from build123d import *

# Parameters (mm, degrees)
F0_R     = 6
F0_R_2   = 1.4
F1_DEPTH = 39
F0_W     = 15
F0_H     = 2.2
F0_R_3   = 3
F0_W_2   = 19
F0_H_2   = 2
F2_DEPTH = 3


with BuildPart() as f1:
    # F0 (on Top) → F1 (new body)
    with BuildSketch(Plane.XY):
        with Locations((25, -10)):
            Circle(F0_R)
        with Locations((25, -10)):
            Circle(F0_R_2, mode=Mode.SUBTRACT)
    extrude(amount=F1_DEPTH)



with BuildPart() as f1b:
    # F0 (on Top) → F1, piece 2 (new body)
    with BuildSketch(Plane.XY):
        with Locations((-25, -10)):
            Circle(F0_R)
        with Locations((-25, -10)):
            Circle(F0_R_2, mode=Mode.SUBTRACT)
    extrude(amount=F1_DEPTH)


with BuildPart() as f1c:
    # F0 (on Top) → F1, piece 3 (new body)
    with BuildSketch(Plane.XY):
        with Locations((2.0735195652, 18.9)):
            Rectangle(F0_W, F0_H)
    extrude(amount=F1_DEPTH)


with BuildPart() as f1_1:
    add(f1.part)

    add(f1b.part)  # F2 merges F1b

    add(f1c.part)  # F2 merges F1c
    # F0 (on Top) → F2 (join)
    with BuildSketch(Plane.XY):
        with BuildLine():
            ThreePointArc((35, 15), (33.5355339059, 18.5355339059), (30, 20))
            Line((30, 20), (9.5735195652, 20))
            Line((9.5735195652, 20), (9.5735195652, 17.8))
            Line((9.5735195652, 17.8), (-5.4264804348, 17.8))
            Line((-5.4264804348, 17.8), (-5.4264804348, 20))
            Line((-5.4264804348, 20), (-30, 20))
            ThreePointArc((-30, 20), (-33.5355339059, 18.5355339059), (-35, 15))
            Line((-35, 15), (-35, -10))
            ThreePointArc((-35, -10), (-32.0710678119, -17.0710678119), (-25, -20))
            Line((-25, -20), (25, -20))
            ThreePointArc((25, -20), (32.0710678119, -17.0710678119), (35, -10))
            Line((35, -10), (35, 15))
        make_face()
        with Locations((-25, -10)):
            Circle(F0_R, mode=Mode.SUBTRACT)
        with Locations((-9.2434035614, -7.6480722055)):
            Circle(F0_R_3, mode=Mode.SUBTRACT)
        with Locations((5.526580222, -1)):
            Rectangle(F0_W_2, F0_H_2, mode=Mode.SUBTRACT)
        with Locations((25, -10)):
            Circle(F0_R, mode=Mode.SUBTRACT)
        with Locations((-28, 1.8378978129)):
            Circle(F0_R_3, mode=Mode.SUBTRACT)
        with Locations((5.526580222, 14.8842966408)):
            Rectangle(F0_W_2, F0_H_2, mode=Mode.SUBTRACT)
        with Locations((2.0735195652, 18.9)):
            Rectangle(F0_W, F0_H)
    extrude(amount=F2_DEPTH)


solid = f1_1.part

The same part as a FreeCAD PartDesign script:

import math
import FreeCAD as App
import Part
import Sketcher

V = App.Vector


def add_polygon(sketch, points):
    """Adds a closed chain of lines whose ends are joined by coincident constraints."""
    first, n = sketch.GeometryCount, len(points)
    for a, b in zip(points, points[1:] + points[:1]):
        sketch.addGeometry(Part.LineSegment(App.Vector(*a, 0), App.Vector(*b, 0)), False)
    for i in range(n):
        sketch.addConstraint(Sketcher.Constraint("Coincident", first + i, 2, first + (i + 1) % n, 1))

doc = App.newDocument("Part")
body = doc.addObject("PartDesign::Body", "Body")

sketch1 = doc.addObject("Sketcher::SketchObject", "Sketch")
body.addObject(sketch1)
sketch1.AttachmentSupport = (doc.XY_Plane, [""])
sketch1.MapMode = "FlatFace"
sketch1.addGeometry(Part.Circle(V(25, -10, 0), V(0, 0, 1), 6), False)
sketch1.addGeometry(Part.Circle(V(25, -10, 0), V(0, 0, 1), 1.4), False)
sketch1.addConstraint(Sketcher.Constraint("Coincident", 1, 3, 0, 3))
sketch1.addConstraint(Sketcher.Constraint("Diameter", 0, 12.0))
sketch1.addConstraint(Sketcher.Constraint("Diameter", 1, 2.8))
sketch1.addConstraint(Sketcher.Constraint("DistanceX", -1, 1, 0, 3, 25.0))
sketch1.addConstraint(Sketcher.Constraint("DistanceY", 0, 3, -1, 1, 10.0))
pad1 = doc.addObject("PartDesign::Pad", "Pad")
body.addObject(pad1)
pad1.Profile = sketch1
pad1.Length = 39
body2 = doc.addObject("PartDesign::Body", "Body001")

sketch2 = doc.addObject("Sketcher::SketchObject", "Sketch001")
body2.addObject(sketch2)
sketch2.AttachmentSupport = (doc.getObject("XY_Plane001"), [""])
sketch2.MapMode = "FlatFace"
sketch2.addGeometry(Part.Circle(V(-25, -10, 0), V(0, 0, 1), 6), False)
sketch2.addGeometry(Part.Circle(V(-25, -10, 0), V(0, 0, 1), 1.4), False)
sketch2.addConstraint(Sketcher.Constraint("Coincident", 1, 3, 0, 3))
sketch2.addConstraint(Sketcher.Constraint("Diameter", 0, 12.0))
sketch2.addConstraint(Sketcher.Constraint("Diameter", 1, 2.8))
sketch2.addConstraint(Sketcher.Constraint("DistanceX", 0, 3, -1, 1, 25.0))
sketch2.addConstraint(Sketcher.Constraint("DistanceY", 0, 3, -1, 1, 10.0))
pad2 = doc.addObject("PartDesign::Pad", "Pad001")
body2.addObject(pad2)
pad2.Profile = sketch2
pad2.Length = 39
body3 = doc.addObject("PartDesign::Body", "Body002")

sketch3 = doc.addObject("Sketcher::SketchObject", "Sketch002")
body3.addObject(sketch3)
sketch3.AttachmentSupport = (doc.getObject("XY_Plane002"), [""])
sketch3.MapMode = "FlatFace"
add_polygon(sketch3, [(-5.42648, 20), (-5.42648, 17.8), (9.57352, 17.8), (9.57352, 20)])
sketch3.addConstraint(Sketcher.Constraint("Vertical", 0))
sketch3.addConstraint(Sketcher.Constraint("Horizontal", 1))
sketch3.addConstraint(Sketcher.Constraint("Vertical", 2))
sketch3.addConstraint(Sketcher.Constraint("Horizontal", 3))
sketch3.addConstraint(Sketcher.Constraint("DistanceX", 1, 1, 1, 2, 15.0))
sketch3.addConstraint(Sketcher.Constraint("DistanceY", 0, 2, 0, 1, 2.2))
sketch3.addConstraint(Sketcher.Constraint("DistanceY", -1, 1, 2, 2, 20.0))
sketch3.addConstraint(Sketcher.Constraint("DistanceX", 0, 2, -1, 1, 5.42648))
pad3 = doc.addObject("PartDesign::Pad", "Pad002")
body3.addObject(pad3)
pad3.Profile = sketch3
pad3.Length = 39
body.AllowCompound = True
doc.recompute()

boolean = doc.addObject("PartDesign::Boolean", "Boolean")
body.addObject(boolean)
boolean.Type = "Fuse"
boolean.addObjects([body2])
doc.recompute()

boolean2 = doc.addObject("PartDesign::Boolean", "Boolean001")
body.addObject(boolean2)
boolean2.Type = "Fuse"
boolean2.addObjects([body3])

sketch4 = doc.addObject("Sketcher::SketchObject", "Sketch003")
body.addObject(sketch4)
sketch4.AttachmentSupport = (doc.XY_Plane, [""])
sketch4.MapMode = "FlatFace"
sketch4.addGeometry(Part.ArcOfCircle(Part.Circle(V(30, 15, 0), V(0, 0, 1), 5), math.radians(0), math.radians(90)), False)
sketch4.addGeometry(Part.LineSegment(V(30, 20, 0), V(-30, 20, 0)), False)
sketch4.addGeometry(Part.ArcOfCircle(Part.Circle(V(-30, 15, 0), V(0, 0, 1), 5), math.radians(90), math.radians(180)), False)
sketch4.addGeometry(Part.LineSegment(V(-35, 15, 0), V(-35, -10, 0)), False)
sketch4.addGeometry(Part.ArcOfCircle(Part.Circle(V(-25, -10, 0), V(0, 0, 1), 10), math.radians(180), math.radians(270)), False)
sketch4.addGeometry(Part.LineSegment(V(-25, -20, 0), V(25, -20, 0)), False)
sketch4.addGeometry(Part.ArcOfCircle(Part.Circle(V(25, -10, 0), V(0, 0, 1), 10), math.radians(-90), math.radians(0)), False)
sketch4.addGeometry(Part.LineSegment(V(35, -10, 0), V(35, 15, 0)), False)
sketch4.addGeometry(Part.Circle(V(-25, -10, 0), V(0, 0, 1), 6), False)
sketch4.addGeometry(Part.Circle(V(-9.243404, -7.648072, 0), V(0, 0, 1), 3), False)
sketch4.addGeometry(Part.Circle(V(25, -10, 0), V(0, 0, 1), 6), False)
add_polygon(sketch4, [(15.02658, -2), (-3.97342, -2), (-3.97342, 0), (15.02658, 0)])
sketch4.addGeometry(Part.Circle(V(-28, 1.837898, 0), V(0, 0, 1), 3), False)
add_polygon(sketch4, [(15.02658, 13.884297), (-3.97342, 13.884297), (-3.97342, 15.884297), (15.02658, 15.884297)])
sketch4.addConstraint(Sketcher.Constraint("Tangent", 0, 2, 1, 1))
sketch4.addConstraint(Sketcher.Constraint("Tangent", 1, 2, 2, 1))
sketch4.addConstraint(Sketcher.Constraint("Tangent", 2, 2, 3, 1))
sketch4.addConstraint(Sketcher.Constraint("Tangent", 3, 2, 4, 1))
sketch4.addConstraint(Sketcher.Constraint("Tangent", 4, 2, 5, 1))
sketch4.addConstraint(Sketcher.Constraint("Tangent", 5, 2, 6, 1))
sketch4.addConstraint(Sketcher.Constraint("Tangent", 6, 2, 7, 1))
sketch4.addConstraint(Sketcher.Constraint("Tangent", 7, 2, 0, 1))
sketch4.addConstraint(Sketcher.Constraint("Horizontal", 1))
sketch4.addConstraint(Sketcher.Constraint("Vertical", 3))
sketch4.addConstraint(Sketcher.Constraint("Horizontal", 5))
sketch4.addConstraint(Sketcher.Constraint("Vertical", 7))
sketch4.addConstraint(Sketcher.Constraint("Horizontal", 11))
sketch4.addConstraint(Sketcher.Constraint("Vertical", 12))
sketch4.addConstraint(Sketcher.Constraint("Horizontal", 13))
sketch4.addConstraint(Sketcher.Constraint("Vertical", 14))
sketch4.addConstraint(Sketcher.Constraint("Horizontal", 16))
sketch4.addConstraint(Sketcher.Constraint("Vertical", 17))
sketch4.addConstraint(Sketcher.Constraint("Horizontal", 18))
sketch4.addConstraint(Sketcher.Constraint("Vertical", 19))
sketch4.addConstraint(Sketcher.Constraint("Coincident", 8, 3, 4, 3))
sketch4.addConstraint(Sketcher.Constraint("Coincident", 10, 3, 6, 3))
sketch4.addConstraint(Sketcher.Constraint("Equal", 0, 2))
sketch4.addConstraint(Sketcher.Constraint("Equal", 4, 6))
sketch4.addConstraint(Sketcher.Constraint("Equal", 8, 10))
sketch4.addConstraint(Sketcher.Constraint("Equal", 9, 15))
sketch4.addConstraint(Sketcher.Constraint("PointOnObject", 12, 2, -1))
sketch4.addConstraint(Sketcher.Constraint("Vertical", 12, 2, 16, 2))
sketch4.addConstraint(Sketcher.Constraint("Vertical", 14, 2, 18, 2))
sketch4.addConstraint(Sketcher.Constraint("Equal", 14, 17))
sketch4.addConstraint(Sketcher.Constraint("Diameter", 8, 12.0))
sketch4.addConstraint(Sketcher.Constraint("Diameter", 9, 6.0))
sketch4.addConstraint(Sketcher.Constraint("Radius", 0, 5.0))
sketch4.addConstraint(Sketcher.Constraint("Radius", 4, 10.0))
sketch4.addConstraint(Sketcher.Constraint("DistanceX", 1, 2, 1, 1, 60.0))
sketch4.addConstraint(Sketcher.Constraint("DistanceX", 11, 2, 11, 1, 19.0))
sketch4.addConstraint(Sketcher.Constraint("DistanceY", 3, 2, 3, 1, 25.0))
sketch4.addConstraint(Sketcher.Constraint("DistanceY", 12, 1, 12, 2, 2.0))
sketch4.addConstraint(Sketcher.Constraint("DistanceX", -1, 1, 0, 3, 30.0))
sketch4.addConstraint(Sketcher.Constraint("DistanceY", -1, 1, 0, 3, 15.0))
sketch4.addConstraint(Sketcher.Constraint("DistanceX", 15, 3, -1, 1, 28.0))
sketch4.addConstraint(Sketcher.Constraint("DistanceX", 11, 2, -1, 1, 3.97342))
sketch4.addConstraint(Sketcher.Constraint("DistanceY", 9, 3, 15, 3, 9.48597))
sketch4.addConstraint(Sketcher.Constraint("DistanceY", 9, 3, 16, 2, 21.532369))
sketch4.addConstraint(Sketcher.Constraint("DistanceX", 9, 3, -1, 1, 9.243404))
sketch4.addConstraint(Sketcher.Constraint("DistanceY", 9, 3, -1, 1, 7.648072))
pad4 = doc.addObject("PartDesign::Pad", "Pad003")
body.addObject(pad4)
pad4.Profile = sketch4
pad4.Length = 3

doc.recompute()
